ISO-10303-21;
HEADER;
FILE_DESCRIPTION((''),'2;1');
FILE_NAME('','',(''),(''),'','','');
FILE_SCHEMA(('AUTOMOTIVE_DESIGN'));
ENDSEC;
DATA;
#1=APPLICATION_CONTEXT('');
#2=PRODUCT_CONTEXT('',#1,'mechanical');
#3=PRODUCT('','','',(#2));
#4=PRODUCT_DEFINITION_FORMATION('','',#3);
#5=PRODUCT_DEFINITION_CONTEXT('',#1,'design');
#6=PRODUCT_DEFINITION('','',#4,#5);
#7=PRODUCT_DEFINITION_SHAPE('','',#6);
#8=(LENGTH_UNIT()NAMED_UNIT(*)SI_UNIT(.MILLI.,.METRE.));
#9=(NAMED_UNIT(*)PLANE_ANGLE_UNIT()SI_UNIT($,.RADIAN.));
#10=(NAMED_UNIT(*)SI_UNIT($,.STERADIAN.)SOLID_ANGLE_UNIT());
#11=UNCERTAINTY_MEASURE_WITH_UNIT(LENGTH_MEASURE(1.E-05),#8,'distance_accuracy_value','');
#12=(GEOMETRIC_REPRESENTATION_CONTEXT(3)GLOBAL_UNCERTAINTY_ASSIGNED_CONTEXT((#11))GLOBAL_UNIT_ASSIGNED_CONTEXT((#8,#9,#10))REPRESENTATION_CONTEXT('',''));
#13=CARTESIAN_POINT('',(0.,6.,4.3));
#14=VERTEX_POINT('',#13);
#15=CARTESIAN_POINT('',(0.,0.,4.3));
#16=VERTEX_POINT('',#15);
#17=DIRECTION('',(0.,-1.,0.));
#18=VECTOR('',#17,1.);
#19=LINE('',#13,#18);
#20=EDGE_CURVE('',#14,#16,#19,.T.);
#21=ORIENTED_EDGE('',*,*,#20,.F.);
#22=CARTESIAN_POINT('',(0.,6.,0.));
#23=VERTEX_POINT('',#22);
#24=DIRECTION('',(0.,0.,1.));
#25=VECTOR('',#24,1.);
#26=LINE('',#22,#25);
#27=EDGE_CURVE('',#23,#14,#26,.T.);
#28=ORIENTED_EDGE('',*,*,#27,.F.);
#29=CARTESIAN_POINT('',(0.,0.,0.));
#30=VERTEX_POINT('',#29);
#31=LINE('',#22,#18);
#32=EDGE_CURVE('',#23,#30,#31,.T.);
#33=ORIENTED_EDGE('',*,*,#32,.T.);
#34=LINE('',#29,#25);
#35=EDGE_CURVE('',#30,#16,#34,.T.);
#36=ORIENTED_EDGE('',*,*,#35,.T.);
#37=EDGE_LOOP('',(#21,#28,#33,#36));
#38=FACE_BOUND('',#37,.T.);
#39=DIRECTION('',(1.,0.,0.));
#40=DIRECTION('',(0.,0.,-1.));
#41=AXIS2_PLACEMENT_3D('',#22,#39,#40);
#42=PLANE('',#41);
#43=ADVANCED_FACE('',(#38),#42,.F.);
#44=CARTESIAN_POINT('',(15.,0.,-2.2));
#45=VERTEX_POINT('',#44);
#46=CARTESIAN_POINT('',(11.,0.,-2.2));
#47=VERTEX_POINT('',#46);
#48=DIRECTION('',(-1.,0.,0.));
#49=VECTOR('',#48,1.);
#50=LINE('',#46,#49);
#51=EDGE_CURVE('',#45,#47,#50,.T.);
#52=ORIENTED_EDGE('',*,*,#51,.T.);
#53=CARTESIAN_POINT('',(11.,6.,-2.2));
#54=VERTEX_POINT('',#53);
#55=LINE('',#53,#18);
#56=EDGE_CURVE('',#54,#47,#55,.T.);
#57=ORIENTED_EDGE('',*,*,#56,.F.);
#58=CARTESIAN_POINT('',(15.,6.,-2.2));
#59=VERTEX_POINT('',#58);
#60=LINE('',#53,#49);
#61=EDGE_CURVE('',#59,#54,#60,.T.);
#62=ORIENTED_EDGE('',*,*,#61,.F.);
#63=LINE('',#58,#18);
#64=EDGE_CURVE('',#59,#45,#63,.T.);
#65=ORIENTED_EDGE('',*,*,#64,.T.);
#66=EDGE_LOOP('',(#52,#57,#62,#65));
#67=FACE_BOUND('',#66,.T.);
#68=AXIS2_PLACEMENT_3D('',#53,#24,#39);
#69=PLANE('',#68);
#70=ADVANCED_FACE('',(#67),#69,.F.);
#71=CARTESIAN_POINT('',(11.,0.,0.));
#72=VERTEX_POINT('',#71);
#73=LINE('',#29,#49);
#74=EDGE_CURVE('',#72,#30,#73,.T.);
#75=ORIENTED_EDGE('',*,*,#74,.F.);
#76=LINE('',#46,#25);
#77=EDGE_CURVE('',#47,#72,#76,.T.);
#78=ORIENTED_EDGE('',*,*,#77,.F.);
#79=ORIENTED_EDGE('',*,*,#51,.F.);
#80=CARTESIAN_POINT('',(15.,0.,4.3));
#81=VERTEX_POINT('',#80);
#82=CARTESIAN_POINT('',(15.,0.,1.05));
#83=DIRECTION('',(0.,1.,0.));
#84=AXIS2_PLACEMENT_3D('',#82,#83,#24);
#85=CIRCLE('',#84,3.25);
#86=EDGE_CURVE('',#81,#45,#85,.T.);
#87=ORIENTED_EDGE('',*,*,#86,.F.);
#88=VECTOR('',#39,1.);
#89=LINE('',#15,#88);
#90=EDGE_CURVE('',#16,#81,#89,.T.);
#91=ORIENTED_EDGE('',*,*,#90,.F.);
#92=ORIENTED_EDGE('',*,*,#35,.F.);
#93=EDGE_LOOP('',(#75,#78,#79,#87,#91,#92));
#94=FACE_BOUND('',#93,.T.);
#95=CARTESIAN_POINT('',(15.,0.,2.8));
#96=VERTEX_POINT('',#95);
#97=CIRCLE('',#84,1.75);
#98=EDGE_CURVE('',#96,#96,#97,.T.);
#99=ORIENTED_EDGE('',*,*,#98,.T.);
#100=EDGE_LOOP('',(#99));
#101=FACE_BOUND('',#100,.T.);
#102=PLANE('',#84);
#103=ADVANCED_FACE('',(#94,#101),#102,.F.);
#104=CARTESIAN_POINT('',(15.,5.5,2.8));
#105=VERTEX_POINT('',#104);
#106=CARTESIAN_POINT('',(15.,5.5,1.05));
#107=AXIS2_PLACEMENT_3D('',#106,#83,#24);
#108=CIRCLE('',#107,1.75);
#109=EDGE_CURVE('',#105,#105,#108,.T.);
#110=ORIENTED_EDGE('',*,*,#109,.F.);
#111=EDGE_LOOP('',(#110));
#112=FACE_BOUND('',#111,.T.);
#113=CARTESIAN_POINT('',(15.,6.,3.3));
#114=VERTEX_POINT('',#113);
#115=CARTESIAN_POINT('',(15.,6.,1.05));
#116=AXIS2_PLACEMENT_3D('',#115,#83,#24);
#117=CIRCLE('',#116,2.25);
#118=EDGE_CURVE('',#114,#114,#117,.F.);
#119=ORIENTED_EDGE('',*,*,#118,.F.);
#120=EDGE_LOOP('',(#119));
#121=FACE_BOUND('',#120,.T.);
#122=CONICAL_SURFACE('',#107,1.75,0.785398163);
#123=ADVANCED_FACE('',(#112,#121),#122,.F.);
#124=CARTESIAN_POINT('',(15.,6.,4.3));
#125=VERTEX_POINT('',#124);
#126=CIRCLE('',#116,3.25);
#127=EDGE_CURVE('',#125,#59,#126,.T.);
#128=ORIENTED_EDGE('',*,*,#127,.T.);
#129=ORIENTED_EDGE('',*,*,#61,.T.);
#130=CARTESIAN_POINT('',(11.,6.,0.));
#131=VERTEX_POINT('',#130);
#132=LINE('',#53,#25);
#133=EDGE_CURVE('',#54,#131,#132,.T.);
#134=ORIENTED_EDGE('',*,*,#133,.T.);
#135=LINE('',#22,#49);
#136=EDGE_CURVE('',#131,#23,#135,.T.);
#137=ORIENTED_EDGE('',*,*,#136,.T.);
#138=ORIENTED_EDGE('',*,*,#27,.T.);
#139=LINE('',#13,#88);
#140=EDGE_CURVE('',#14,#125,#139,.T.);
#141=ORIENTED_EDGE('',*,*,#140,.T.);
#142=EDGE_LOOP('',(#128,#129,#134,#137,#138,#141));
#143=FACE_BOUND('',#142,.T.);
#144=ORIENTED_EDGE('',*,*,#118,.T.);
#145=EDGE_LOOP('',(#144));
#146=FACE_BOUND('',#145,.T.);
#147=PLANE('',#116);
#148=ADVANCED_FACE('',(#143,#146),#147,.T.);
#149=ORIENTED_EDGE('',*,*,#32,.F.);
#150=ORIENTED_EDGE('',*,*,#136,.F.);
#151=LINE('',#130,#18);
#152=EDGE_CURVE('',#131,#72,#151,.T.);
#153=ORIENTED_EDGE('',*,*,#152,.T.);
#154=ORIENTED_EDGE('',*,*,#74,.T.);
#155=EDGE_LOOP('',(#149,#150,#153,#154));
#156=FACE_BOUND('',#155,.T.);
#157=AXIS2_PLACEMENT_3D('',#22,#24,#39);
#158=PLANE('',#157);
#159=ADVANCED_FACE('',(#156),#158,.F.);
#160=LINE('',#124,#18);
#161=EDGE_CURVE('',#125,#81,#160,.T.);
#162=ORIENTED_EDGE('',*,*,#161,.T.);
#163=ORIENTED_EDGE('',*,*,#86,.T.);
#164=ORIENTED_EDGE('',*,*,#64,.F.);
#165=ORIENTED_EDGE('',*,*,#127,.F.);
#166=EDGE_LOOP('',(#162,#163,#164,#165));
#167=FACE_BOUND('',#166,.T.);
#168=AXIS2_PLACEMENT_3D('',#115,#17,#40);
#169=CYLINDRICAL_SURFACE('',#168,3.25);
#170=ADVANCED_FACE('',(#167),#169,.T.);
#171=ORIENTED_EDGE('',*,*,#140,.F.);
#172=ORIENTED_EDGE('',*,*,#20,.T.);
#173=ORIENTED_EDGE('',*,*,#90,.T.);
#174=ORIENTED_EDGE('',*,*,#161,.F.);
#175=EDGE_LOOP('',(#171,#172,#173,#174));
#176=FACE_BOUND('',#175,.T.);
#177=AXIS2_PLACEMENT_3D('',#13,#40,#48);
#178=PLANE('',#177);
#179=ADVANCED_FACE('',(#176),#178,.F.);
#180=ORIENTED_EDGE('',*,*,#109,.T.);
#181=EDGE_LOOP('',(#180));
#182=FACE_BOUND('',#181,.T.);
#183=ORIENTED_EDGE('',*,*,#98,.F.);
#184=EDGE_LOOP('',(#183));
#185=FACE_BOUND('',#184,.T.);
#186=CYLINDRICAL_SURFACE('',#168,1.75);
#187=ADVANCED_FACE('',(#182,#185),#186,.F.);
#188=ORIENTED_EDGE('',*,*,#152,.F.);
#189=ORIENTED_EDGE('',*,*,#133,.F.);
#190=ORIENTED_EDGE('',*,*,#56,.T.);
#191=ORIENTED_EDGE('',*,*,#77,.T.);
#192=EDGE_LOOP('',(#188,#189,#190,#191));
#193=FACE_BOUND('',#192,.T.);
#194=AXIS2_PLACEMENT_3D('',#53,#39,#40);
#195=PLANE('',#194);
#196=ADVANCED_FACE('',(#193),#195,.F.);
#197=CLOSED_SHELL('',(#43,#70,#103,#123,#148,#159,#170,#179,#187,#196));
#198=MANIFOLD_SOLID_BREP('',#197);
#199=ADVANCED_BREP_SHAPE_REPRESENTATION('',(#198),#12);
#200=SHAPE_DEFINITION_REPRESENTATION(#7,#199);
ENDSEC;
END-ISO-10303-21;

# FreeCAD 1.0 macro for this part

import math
import FreeCAD as App
import Part
import Sketcher
from FreeCAD import Vector
Q = App.Units.Quantity


def edges_at(feature, points):
    """Names of the edges that pass closest to the given points."""
    edges = feature.Shape.Edges
    near = lambda p: min(range(len(edges)), key=lambda i: edges[i].distToShape(Part.Vertex(*p))[0])
    return sorted({f"Edge{near(p) + 1}" for p in points})

doc = App.newDocument("Part")
body = doc.addObject("PartDesign::Body", "Body")

# Sketch on XZ plane
sketch1 = body.newObject("Sketcher::SketchObject", "Sketch")
sketch1.AttachmentSupport = (doc.getObject("XZ_Plane"), [""])
sketch1.MapMode = "FlatFace"
sketch1.addGeometry(Part.LineSegment(Vector(15, -2.2, 0), Vector(11, -2.2, 0)), False)
sketch1.addGeometry(Part.LineSegment(Vector(11, -2.2, 0), Vector(11, 0, 0)), False)
sketch1.addGeometry(Part.LineSegment(Vector(11, 0, 0), Vector(0, 0, 0)), False)
sketch1.addGeometry(Part.LineSegment(Vector(0, 0, 0), Vector(0, 4.3, 0)), False)
sketch1.addGeometry(Part.LineSegment(Vector(0, 4.3, 0), Vector(15, 4.3, 0)), False)
sketch1.addGeometry(Part.ArcOfCircle(Part.Circle(Vector(15, 1.05, 0), Vector(0, 0, 1), 3.25), math.radians(-90), math.radians(90)), False)
sketch1.addGeometry(Part.Circle(Vector(15, 1.05, 0), Vector(0, 0, 1), 1.75), False)
sketch1.addConstraint(Sketcher.Constraint("Coincident", 0, 2, 1, 1))
sketch1.addConstraint(Sketcher.Constraint("Coincident", 1, 2, 2, 1))
sketch1.addConstraint(Sketcher.Constraint("Coincident", 2, 2, 3, 1))
sketch1.addConstraint(Sketcher.Constraint("Coincident", 3, 2, 4, 1))
sketch1.addConstraint(Sketcher.Constraint("Tangent", 4, 2, 5, 2))
sketch1.addConstraint(Sketcher.Constraint("Tangent", 5, 1, 0, 1))
sketch1.addConstraint(Sketcher.Constraint("Horizontal", 0))
sketch1.addConstraint(Sketcher.Constraint("Vertical", 1))
sketch1.addConstraint(Sketcher.Constraint("Horizontal", 2))
sketch1.addConstraint(Sketcher.Constraint("Vertical", 3))
sketch1.addConstraint(Sketcher.Constraint("Horizontal", 4))
sketch1.addConstraint(Sketcher.Constraint("Coincident", 2, 2, -1, 1))
sketch1.addConstraint(Sketcher.Constraint("Coincident", 6, 3, 5, 3))
sketch1.addConstraint(Sketcher.Constraint("Diameter", 6, Q("3.5 mm")))
sketch1.addConstraint(Sketcher.Constraint("DistanceX", 0, 2, 0, 1, Q("4 mm")))
sketch1.addConstraint(Sketcher.Constraint("DistanceX", 2, 2, 2, 1, Q("11 mm")))
sketch1.addConstraint(Sketcher.Constraint("Radius", 5, Q("3.25 mm")))
sketch1.addConstraint(Sketcher.Constraint("DistanceY", 1, 1, 1, 2, Q("2.2 mm")))
pad1 = body.newObject("PartDesign::Pad", "Pad")
pad1.Profile = sketch1
pad1.Length = 6
pad1.Reversed = True
doc.recompute()

chamfer = body.newObject("PartDesign::Chamfer", "Chamfer")
chamfer.Base = (pad1, edges_at(pad1, [(15, 6, -0.7)]))
chamfer.Size = 0.5

doc.recompute()
